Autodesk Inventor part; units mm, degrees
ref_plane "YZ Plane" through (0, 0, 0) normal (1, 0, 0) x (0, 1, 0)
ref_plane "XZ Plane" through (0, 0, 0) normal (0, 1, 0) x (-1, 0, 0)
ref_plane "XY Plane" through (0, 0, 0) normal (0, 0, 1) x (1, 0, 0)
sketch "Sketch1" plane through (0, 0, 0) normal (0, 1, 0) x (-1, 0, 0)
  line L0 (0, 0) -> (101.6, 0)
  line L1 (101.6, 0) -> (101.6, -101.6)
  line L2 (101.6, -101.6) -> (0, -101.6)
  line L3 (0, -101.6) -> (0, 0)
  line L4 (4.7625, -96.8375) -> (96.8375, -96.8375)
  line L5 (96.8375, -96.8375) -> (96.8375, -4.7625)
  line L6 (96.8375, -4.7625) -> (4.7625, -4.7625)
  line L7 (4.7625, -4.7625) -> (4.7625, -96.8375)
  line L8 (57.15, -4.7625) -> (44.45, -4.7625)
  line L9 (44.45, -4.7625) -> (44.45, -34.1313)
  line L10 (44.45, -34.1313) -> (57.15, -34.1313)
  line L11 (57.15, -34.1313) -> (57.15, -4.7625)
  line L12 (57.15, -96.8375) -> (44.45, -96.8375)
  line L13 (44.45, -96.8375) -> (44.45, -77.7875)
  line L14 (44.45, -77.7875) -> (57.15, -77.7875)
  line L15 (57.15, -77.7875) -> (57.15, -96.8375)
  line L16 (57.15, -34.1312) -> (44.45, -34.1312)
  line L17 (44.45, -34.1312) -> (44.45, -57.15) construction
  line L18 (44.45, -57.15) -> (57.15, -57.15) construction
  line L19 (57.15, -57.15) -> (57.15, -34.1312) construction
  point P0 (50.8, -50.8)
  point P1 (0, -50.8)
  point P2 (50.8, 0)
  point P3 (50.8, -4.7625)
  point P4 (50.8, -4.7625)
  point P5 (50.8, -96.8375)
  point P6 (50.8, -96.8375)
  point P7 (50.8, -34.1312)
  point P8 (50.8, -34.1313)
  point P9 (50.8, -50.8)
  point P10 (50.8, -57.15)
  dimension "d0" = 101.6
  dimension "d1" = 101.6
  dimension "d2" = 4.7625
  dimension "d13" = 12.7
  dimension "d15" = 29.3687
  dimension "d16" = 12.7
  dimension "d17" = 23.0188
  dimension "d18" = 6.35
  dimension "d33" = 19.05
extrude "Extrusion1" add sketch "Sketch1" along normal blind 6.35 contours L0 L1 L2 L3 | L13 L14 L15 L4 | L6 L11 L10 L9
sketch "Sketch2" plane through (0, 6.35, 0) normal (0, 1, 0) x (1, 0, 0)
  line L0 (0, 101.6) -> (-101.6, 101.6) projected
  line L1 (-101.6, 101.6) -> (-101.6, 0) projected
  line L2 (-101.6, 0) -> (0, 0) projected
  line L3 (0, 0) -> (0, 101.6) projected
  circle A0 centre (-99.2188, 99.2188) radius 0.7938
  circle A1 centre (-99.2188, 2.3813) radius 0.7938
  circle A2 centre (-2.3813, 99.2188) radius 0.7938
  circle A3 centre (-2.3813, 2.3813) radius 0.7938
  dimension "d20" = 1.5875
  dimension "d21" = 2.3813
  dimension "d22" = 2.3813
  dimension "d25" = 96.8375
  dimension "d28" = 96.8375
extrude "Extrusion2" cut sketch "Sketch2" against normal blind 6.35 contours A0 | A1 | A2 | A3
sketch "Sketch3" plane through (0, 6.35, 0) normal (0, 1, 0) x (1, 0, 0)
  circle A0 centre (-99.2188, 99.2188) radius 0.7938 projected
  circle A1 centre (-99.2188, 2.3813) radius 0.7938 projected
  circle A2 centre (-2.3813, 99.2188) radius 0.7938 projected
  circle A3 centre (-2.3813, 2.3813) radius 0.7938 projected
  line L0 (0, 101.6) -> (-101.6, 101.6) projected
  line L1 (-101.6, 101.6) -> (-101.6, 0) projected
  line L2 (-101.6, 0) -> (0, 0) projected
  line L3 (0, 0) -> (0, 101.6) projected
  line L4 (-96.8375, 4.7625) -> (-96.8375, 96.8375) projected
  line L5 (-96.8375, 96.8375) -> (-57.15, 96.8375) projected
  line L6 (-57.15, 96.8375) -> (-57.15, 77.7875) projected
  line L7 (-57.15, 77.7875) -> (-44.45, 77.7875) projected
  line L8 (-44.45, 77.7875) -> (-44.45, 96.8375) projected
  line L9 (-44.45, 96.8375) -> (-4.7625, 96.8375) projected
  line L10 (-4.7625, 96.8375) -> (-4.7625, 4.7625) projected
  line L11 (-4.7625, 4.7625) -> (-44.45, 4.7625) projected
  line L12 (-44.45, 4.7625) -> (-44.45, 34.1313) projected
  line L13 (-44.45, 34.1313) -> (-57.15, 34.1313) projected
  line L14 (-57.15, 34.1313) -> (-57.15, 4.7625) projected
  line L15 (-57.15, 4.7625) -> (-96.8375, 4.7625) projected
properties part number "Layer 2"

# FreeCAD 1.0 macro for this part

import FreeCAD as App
import Part
import Sketcher
Q = App.Units.Quantity

doc = App.newDocument("Part")
body = doc.addObject("PartDesign::Body", "Body")

sketch1 = body.newObject("Sketcher::SketchObject", "Sketch")
sketch1.AttachmentSupport = (doc.getObject("XZ_Plane"), [""])
sketch1.MapMode = "FlatFace"
sketch1.addGeometry(Part.LineSegment(App.Vector(-102, 0, 0), App.Vector(0, 0, 0)), False)
sketch1.addGeometry(Part.LineSegment(App.Vector(0, 0, 0), App.Vector(0, -102, 0)), False)
sketch1.addGeometry(Part.LineSegment(App.Vector(0, -102, 0), App.Vector(-102, -102, 0)), False)
sketch1.addGeometry(Part.LineSegment(App.Vector(-102, -102, 0), App.Vector(-102, 0, 0)), False)
sketch1.addGeometry(Part.LineSegment(App.Vector(-44, -97, 0), App.Vector(-5, -97, 0)), False)
sketch1.addGeometry(Part.LineSegment(App.Vector(-5, -97, 0), App.Vector(-5, -5, 0)), False)
sketch1.addGeometry(Part.LineSegment(App.Vector(-5, -5, 0), App.Vector(-44, -5, 0)), False)
sketch1.addGeometry(Part.LineSegment(App.Vector(-44, -5, 0), App.Vector(-44, -34, 0)), False)
sketch1.addGeometry(Part.LineSegment(App.Vector(-44, -34, 0), App.Vector(-57, -34, 0)), False)
sketch1.addGeometry(Part.LineSegment(App.Vector(-57, -34, 0), App.Vector(-57, -5, 0)), False)
sketch1.addGeometry(Part.LineSegment(App.Vector(-57, -5, 0), App.Vector(-97, -5, 0)), False)
sketch1.addGeometry(Part.LineSegment(App.Vector(-97, -5, 0), App.Vector(-97, -97, 0)), False)
sketch1.addGeometry(Part.LineSegment(App.Vector(-97, -97, 0), App.Vector(-57, -97, 0)), False)
sketch1.addGeometry(Part.LineSegment(App.Vector(-57, -97, 0), App.Vector(-57, -78, 0)), False)
sketch1.addGeometry(Part.LineSegment(App.Vector(-57, -78, 0), App.Vector(-44, -78, 0)), False)
sketch1.addGeometry(Part.LineSegment(App.Vector(-44, -78, 0), App.Vector(-44, -97, 0)), False)
sketch1.addConstraint(Sketcher.Constraint("Coincident", 0, 2, 1, 1))
sketch1.addConstraint(Sketcher.Constraint("Coincident", 1, 2, 2, 1))
sketch1.addConstraint(Sketcher.Constraint("Coincident", 2, 2, 3, 1))
sketch1.addConstraint(Sketcher.Constraint("Coincident", 3, 2, 0, 1))
sketch1.addConstraint(Sketcher.Constraint("Coincident", 4, 2, 5, 1))
sketch1.addConstraint(Sketcher.Constraint("Coincident", 5, 2, 6, 1))
sketch1.addConstraint(Sketcher.Constraint("Coincident", 6, 2, 7, 1))
sketch1.addConstraint(Sketcher.Constraint("Coincident", 7, 2, 8, 1))
sketch1.addConstraint(Sketcher.Constraint("Coincident", 8, 2, 9, 1))
sketch1.addConstraint(Sketcher.Constraint("Coincident", 9, 2, 10, 1))
sketch1.addConstraint(Sketcher.Constraint("Coincident", 10, 2, 11, 1))
sketch1.addConstraint(Sketcher.Constraint("Coincident", 11, 2, 12, 1))
sketch1.addConstraint(Sketcher.Constraint("Coincident", 12, 2, 13, 1))
sketch1.addConstraint(Sketcher.Constraint("Coincident", 13, 2, 14, 1))
sketch1.addConstraint(Sketcher.Constraint("Coincident", 14, 2, 15, 1))
sketch1.addConstraint(Sketcher.Constraint("Coincident", 15, 2, 4, 1))
sketch1.addConstraint(Sketcher.Constraint("Horizontal", 0))
sketch1.addConstraint(Sketcher.Constraint("Vertical", 1))
sketch1.addConstraint(Sketcher.Constraint("Horizontal", 2))
sketch1.addConstraint(Sketcher.Constraint("Vertical", 3))
sketch1.addConstraint(Sketcher.Constraint("Horizontal", 4))
sketch1.addConstraint(Sketcher.Constraint("Vertical", 5))
sketch1.addConstraint(Sketcher.Constraint("Horizontal", 6))
sketch1.addConstraint(Sketcher.Constraint("Vertical", 7))
sketch1.addConstraint(Sketcher.Constraint("Horizontal", 8))
sketch1.addConstraint(Sketcher.Constraint("Vertical", 9))
sketch1.addConstraint(Sketcher.Constraint("Horizontal", 10))
sketch1.addConstraint(Sketcher.Constraint("Vertical", 11))
sketch1.addConstraint(Sketcher.Constraint("Horizontal", 12))
sketch1.addConstraint(Sketcher.Constraint("Vertical", 13))
sketch1.addConstraint(Sketcher.Constraint("Horizontal", 14))
sketch1.addConstraint(Sketcher.Constraint("Vertical", 15))
sketch1.addConstraint(Sketcher.Constraint("Coincident", 0, 2, -1, 1))
sketch1.addConstraint(Sketcher.Constraint("Horizontal", 6, 2, 9, 2))
sketch1.addConstraint(Sketcher.Constraint("Horizontal", 4, 2, 11, 2))
sketch1.addConstraint(Sketcher.Constraint("Vertical", 9, 2, 12, 2))
sketch1.addConstraint(Sketcher.Constraint("Vertical", 7, 2, 14, 2))
sketch1.addConstraint(Sketcher.Constraint("Equal", 6, 10))
sketch1.addConstraint(Sketcher.Constraint("Equal", 2, 1))
sketch1.addConstraint(Sketcher.Constraint("DistanceX", 0, 1, 0, 2, Q("4 in")))
sketch1.addConstraint(Sketcher.Constraint("DistanceX", 8, 2, 8, 1, Q("0.5 in")))
sketch1.addConstraint(Sketcher.Constraint("DistanceY", 13, 1, 13, 2, Q("0.75 in")))
sketch1.addConstraint(Sketcher.Constraint("DistanceY", 7, 2, 7, 1, Q("1.156252 in")))
sketch1.addConstraint(Sketcher.Constraint("DistanceX", 4, 2, -1, 1, Q("0.1875 in")))
sketch1.addConstraint(Sketcher.Constraint("DistanceY", 5, 2, -1, 1, Q("0.1875 in")))
sketch1.addConstraint(Sketcher.Constraint("DistanceY", 1, 2, 4, 2, Q("0.1875 in")))
sketch1.addConstraint(Sketcher.Constraint("DistanceX", 3, 2, 10, 2, Q("0.1875 in")))
pad1 = body.newObject("PartDesign::Pad", "Pad")
pad1.Profile = sketch1
pad1.Length = Q("0.25 in")
pad1.Reversed = True

sketch2 = body.newObject("Sketcher::SketchObject", "Sketch001")
sketch2.AttachmentSupport = (doc.getObject("XZ_Plane"), [""])
sketch2.MapMode = "FlatFace"
sketch2.AttachmentOffset = App.Placement(App.Vector(0, 0, -0.25 * 25.4), App.Rotation())
sketch2.addGeometry(Part.Circle(App.Vector(-99.2, -99.2, 0), App.Vector(0, 0, 1), 0.8), False)
sketch2.addGeometry(Part.Circle(App.Vector(-99.2, -2.4, 0), App.Vector(0, 0, 1), 0.8), False)
sketch2.addGeometry(Part.Circle(App.Vector(-2.4, -99.2, 0), App.Vector(0, 0, 1), 0.8), False)
sketch2.addGeometry(Part.Circle(App.Vector(-2.4, -2.4, 0), App.Vector(0, 0, 1), 0.8), False)
sketch2.addConstraint(Sketcher.Constraint("Equal", 0, 1))
sketch2.addConstraint(Sketcher.Constraint("Equal", 1, 2))
sketch2.addConstraint(Sketcher.Constraint("Equal", 2, 3))
sketch2.addConstraint(Sketcher.Constraint("Horizontal", 0, 3, 2, 3))
sketch2.addConstraint(Sketcher.Constraint("Horizontal", 1, 3, 3, 3))
sketch2.addConstraint(Sketcher.Constraint("Vertical", 0, 3, 1, 3))
sketch2.addConstraint(Sketcher.Constraint("Vertical", 2, 3, 3, 3))
sketch2.addConstraint(Sketcher.Constraint("Diameter", 0, Q("0.0625 in")))
sketch2.addConstraint(Sketcher.Constraint("DistanceY", 1, 3, -1, 1, Q("0.093752 in")))
sketch2.addConstraint(Sketcher.Constraint("DistanceX", 2, 3, -1, 1, Q("0.093752 in")))
sketch2.addConstraint(Sketcher.Constraint("DistanceY", 0, 3, 1, 3, Q("3.8125 in")))
sketch2.addConstraint(Sketcher.Constraint("DistanceX", 0, 3, 2, 3, Q("3.8125 in")))
pocket1 = body.newObject("PartDesign::Pocket", "Pocket")
pocket1.Profile = sketch2
pocket1.Length = Q("0.25 in")
pocket1.Reversed = True

doc.recompute()
